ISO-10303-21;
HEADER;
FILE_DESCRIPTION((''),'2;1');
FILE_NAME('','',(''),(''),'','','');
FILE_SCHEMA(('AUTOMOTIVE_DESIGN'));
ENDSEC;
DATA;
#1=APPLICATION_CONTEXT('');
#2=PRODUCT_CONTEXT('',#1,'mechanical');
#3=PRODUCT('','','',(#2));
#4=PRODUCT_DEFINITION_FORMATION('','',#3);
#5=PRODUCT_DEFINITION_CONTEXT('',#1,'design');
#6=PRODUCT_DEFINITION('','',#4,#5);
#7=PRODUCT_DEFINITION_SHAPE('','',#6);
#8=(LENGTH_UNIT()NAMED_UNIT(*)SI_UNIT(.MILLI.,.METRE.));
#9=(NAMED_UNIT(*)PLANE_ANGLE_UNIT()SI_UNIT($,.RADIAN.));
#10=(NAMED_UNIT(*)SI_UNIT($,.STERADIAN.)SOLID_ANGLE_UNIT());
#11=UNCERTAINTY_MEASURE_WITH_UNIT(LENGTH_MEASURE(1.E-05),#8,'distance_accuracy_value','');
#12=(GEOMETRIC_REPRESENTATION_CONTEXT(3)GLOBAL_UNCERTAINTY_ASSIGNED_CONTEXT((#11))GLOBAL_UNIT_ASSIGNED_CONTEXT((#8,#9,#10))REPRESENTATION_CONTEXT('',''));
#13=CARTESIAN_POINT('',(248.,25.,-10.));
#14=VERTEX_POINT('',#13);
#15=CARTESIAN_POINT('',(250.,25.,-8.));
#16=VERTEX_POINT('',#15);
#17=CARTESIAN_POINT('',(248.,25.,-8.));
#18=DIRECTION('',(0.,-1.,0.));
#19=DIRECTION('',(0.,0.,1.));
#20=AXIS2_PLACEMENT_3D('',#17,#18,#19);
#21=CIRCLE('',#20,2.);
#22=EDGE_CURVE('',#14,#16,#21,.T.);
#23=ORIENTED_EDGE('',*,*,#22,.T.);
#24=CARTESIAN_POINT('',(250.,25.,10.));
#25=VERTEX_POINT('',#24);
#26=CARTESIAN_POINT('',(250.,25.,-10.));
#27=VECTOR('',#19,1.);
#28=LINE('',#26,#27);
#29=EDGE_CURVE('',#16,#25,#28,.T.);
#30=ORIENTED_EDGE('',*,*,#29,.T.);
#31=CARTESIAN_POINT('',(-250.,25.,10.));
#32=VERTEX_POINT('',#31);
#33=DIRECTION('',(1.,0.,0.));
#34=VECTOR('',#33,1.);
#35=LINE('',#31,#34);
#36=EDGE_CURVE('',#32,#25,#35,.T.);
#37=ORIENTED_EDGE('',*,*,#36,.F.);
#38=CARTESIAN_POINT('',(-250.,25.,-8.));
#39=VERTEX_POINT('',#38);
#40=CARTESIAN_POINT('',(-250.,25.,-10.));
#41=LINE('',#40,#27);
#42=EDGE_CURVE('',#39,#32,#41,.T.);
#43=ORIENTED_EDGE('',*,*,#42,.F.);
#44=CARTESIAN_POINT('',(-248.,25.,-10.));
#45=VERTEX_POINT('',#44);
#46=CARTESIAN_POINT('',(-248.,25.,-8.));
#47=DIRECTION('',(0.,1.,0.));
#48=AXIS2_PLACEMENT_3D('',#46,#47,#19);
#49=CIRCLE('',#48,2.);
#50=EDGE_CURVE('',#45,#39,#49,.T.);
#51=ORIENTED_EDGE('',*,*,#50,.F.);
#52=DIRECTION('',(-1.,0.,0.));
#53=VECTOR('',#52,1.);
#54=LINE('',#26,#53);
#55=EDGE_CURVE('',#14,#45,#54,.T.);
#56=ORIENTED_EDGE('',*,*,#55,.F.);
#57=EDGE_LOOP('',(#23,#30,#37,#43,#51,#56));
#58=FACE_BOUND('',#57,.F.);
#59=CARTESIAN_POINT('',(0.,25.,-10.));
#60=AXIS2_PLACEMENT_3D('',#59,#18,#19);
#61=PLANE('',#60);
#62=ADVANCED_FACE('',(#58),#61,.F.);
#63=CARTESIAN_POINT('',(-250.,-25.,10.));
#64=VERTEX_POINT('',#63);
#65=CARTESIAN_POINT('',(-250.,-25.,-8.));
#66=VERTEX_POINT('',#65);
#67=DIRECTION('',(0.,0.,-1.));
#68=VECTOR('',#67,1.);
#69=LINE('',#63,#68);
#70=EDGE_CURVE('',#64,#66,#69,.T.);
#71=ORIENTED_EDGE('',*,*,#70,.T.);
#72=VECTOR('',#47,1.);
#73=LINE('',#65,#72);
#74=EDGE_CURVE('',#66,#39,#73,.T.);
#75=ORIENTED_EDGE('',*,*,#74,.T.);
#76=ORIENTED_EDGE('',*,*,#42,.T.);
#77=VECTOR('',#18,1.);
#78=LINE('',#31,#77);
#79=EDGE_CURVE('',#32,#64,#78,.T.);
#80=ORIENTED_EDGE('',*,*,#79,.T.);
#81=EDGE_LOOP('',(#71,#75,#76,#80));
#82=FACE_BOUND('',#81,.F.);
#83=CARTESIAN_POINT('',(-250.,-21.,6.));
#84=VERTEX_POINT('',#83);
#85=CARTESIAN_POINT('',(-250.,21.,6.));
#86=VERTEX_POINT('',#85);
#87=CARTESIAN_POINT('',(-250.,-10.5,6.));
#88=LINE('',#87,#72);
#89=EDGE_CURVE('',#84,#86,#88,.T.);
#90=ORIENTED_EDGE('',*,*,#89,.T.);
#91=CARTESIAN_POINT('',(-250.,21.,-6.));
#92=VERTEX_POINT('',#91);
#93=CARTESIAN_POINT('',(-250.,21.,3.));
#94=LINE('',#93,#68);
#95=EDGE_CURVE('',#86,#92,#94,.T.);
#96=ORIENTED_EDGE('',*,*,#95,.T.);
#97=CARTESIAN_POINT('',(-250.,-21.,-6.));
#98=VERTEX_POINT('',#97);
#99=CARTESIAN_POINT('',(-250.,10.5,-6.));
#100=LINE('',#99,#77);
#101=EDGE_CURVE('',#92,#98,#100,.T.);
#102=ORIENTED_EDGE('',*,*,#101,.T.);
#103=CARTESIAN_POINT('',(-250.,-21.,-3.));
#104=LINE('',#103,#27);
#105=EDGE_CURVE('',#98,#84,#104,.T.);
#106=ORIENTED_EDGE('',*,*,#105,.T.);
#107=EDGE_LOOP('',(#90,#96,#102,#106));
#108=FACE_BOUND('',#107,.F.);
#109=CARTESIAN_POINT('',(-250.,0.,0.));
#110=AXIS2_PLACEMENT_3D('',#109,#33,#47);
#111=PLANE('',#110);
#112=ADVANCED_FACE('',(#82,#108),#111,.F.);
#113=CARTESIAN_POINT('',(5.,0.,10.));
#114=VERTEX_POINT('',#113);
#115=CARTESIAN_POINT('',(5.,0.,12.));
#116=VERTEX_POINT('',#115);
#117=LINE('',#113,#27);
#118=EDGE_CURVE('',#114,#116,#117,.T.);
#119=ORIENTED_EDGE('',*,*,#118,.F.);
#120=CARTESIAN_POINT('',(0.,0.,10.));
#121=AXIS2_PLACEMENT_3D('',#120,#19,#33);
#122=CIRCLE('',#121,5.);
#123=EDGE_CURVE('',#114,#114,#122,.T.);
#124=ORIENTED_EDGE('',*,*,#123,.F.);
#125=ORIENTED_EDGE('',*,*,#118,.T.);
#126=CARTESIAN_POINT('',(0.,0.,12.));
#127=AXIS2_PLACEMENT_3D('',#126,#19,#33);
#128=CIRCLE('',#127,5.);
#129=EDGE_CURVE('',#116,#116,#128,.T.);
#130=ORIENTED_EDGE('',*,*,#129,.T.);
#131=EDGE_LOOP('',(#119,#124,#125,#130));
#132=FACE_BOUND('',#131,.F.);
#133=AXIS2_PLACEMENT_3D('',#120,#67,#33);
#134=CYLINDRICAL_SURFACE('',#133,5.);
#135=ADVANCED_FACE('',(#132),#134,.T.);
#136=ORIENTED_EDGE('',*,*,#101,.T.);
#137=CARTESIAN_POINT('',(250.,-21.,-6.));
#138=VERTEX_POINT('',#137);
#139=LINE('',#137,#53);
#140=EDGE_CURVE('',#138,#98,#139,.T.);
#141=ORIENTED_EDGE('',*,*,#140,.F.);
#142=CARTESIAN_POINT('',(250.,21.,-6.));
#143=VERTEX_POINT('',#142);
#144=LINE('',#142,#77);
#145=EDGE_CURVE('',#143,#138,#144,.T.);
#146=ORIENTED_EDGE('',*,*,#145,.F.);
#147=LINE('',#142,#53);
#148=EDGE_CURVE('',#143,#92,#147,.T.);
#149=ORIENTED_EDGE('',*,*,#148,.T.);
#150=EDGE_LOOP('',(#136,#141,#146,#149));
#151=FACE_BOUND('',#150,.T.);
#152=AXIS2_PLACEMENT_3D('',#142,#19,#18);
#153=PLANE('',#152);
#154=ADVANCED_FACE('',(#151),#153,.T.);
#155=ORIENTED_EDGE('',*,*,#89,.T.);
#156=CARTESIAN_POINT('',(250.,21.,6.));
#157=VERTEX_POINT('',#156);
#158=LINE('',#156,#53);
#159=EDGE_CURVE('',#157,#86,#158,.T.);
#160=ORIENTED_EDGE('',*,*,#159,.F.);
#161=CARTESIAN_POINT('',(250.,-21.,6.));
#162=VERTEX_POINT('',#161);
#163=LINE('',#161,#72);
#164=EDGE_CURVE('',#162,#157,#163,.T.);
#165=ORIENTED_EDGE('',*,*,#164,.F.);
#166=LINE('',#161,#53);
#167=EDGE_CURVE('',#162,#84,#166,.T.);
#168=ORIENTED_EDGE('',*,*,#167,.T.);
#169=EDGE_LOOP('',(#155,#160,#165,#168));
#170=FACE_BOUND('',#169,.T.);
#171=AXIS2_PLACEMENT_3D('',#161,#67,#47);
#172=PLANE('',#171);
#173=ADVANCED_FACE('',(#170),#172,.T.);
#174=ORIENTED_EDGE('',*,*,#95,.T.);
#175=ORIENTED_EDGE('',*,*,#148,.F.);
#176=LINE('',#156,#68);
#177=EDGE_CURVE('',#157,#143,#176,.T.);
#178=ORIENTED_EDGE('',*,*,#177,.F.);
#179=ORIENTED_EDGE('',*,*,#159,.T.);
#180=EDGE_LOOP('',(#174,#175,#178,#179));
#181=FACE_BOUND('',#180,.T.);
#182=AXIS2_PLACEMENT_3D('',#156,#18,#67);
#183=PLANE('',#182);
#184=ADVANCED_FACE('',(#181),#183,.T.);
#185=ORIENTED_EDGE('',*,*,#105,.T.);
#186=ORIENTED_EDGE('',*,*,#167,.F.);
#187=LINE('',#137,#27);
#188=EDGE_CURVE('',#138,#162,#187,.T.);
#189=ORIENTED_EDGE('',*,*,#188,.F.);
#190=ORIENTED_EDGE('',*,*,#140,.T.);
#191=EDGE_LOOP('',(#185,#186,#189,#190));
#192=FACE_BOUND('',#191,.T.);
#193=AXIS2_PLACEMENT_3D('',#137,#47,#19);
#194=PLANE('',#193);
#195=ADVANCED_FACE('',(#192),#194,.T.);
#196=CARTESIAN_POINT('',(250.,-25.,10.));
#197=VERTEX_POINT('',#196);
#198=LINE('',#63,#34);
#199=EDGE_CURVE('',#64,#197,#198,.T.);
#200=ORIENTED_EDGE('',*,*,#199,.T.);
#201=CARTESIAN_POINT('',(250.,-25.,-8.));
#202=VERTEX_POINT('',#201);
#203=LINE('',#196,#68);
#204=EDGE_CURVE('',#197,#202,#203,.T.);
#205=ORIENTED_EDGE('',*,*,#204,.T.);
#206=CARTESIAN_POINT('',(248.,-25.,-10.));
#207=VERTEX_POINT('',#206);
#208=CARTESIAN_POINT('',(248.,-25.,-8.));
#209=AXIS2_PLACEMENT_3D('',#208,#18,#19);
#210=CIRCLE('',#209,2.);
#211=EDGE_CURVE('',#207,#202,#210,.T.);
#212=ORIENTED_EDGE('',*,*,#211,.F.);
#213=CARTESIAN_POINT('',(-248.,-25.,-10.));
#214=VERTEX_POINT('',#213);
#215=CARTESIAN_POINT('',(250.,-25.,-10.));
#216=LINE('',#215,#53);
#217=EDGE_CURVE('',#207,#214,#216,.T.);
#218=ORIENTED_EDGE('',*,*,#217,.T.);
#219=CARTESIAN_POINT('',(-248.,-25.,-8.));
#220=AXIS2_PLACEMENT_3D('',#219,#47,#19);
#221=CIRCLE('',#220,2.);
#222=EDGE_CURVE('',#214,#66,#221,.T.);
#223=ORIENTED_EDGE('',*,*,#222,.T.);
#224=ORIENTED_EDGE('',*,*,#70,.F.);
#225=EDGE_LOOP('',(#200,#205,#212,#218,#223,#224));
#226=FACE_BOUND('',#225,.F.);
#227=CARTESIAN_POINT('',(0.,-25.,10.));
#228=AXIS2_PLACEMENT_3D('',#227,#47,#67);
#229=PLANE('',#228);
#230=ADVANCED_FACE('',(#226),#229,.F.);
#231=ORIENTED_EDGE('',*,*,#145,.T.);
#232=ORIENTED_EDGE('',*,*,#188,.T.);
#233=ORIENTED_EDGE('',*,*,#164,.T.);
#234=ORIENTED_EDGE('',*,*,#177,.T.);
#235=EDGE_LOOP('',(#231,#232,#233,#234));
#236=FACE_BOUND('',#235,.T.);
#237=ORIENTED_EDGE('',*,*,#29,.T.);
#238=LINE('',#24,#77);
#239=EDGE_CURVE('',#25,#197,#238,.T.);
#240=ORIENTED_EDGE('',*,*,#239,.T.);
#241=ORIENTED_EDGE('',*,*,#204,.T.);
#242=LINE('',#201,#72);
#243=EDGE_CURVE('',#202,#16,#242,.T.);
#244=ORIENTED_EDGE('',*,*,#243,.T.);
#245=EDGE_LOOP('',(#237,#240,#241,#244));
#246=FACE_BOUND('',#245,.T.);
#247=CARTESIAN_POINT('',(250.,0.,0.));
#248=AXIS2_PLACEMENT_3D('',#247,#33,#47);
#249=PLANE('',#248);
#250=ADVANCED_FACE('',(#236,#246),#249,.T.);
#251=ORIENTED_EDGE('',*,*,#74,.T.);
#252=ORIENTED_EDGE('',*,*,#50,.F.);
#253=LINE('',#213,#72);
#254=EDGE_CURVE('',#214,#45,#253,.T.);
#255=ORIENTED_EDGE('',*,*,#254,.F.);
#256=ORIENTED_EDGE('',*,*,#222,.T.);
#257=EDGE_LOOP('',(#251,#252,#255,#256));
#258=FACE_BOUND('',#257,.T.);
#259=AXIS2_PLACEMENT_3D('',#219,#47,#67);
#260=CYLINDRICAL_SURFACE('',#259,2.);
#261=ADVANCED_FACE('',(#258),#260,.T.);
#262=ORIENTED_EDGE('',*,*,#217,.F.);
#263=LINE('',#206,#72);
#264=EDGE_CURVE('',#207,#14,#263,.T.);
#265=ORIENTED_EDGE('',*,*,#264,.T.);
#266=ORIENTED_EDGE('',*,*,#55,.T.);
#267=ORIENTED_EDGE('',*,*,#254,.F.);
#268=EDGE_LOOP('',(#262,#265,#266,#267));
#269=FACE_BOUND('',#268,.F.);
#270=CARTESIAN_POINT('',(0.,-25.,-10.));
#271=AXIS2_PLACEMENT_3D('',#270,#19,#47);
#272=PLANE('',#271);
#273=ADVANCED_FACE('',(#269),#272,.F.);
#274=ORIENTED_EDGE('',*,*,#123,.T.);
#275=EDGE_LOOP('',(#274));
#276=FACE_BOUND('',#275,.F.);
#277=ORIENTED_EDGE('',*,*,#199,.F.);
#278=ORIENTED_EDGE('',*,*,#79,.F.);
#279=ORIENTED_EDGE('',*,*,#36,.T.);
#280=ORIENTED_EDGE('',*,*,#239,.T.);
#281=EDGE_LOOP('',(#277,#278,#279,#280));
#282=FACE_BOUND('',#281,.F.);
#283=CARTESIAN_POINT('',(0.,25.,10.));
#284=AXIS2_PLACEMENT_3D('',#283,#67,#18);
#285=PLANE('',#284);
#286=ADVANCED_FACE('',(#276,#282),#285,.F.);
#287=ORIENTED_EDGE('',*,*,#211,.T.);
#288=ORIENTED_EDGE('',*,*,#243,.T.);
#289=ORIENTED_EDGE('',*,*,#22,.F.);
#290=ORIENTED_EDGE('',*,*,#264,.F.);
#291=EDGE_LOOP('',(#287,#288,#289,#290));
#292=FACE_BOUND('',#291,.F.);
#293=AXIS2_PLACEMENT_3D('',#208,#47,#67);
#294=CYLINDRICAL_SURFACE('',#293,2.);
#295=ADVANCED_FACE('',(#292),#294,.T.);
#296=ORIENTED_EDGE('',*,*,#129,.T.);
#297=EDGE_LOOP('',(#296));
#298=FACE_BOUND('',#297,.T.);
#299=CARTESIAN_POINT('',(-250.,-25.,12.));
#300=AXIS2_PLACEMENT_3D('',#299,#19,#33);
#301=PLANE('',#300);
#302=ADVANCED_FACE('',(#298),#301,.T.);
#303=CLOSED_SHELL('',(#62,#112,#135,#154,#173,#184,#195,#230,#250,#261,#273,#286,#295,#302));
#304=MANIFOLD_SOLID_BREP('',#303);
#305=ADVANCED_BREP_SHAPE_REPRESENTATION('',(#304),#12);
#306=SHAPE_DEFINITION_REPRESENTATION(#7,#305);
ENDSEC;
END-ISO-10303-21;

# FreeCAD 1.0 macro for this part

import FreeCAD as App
import Part
import Sketcher

V = App.Vector


def edges_at(feature, points):
    """Names of the edges that pass closest to the given points."""
    edges = feature.Shape.Edges
    near = lambda p: min(range(len(edges)), key=lambda i: edges[i].distToShape(Part.Vertex(*p))[0])
    return sorted({f"Edge{near(p) + 1}" for p in points})


def add_polygon(sketch, points):
    """Adds a closed chain of lines whose ends are joined by coincident constraints."""
    first, n = sketch.GeometryCount, len(points)
    for a, b in zip(points, points[1:] + points[:1]):
        sketch.addGeometry(Part.LineSegment(App.Vector(*a, 0), App.Vector(*b, 0)), False)
    for i in range(n):
        sketch.addConstraint(Sketcher.Constraint("Coincident", first + i, 2, first + (i + 1) % n, 1))

doc = App.newDocument("Part")
body = doc.addObject("PartDesign::Body", "Body")

# Sketch on YZ plane
sketch1 = body.newObject("Sketcher::SketchObject", "Sketch")
sketch1.AttachmentSupport = (doc.getObject("YZ_Plane"), [""])
sketch1.MapMode = "FlatFace"
add_polygon(sketch1, [(25, -10), (25, 10), (-25, 10), (-25, -10)])  # lines 0-3
sketch1.addConstraint(Sketcher.Constraint("Vertical", 0))
sketch1.addConstraint(Sketcher.Constraint("Horizontal", 1))
sketch1.addConstraint(Sketcher.Constraint("Vertical", 2))
sketch1.addConstraint(Sketcher.Constraint("Horizontal", 3))
sketch1.addConstraint(Sketcher.Constraint("Symmetric", 0, 2, 2, 2, -1, 1))
sketch1.addConstraint(Sketcher.Constraint("DistanceX", 1, 2, 1, 1, 50.0))
sketch1.addConstraint(Sketcher.Constraint("DistanceY", 0, 1, 0, 2, 20.0))
pad1 = body.newObject("PartDesign::Pad", "Pad")
pad1.Profile = sketch1
pad1.Length = 500
pad1.Midplane = True

# Sketch on XY plane
sketch2 = body.newObject("Sketcher::SketchObject", "Sketch001")
sketch2.AttachmentSupport = (doc.getObject("XY_Plane"), [""])
sketch2.MapMode = "FlatFace"
sketch2.AttachmentOffset = App.Placement(V(0, 0, 10), App.Rotation())
sketch2.addGeometry(Part.Circle(V(0, 0, 0), V(0, 0, 1), 5), False)
sketch2.addConstraint(Sketcher.Constraint("Coincident", 0, 3, -1, 1))
sketch2.addConstraint(Sketcher.Constraint("Diameter", 0, 10.0))
pad2 = body.newObject("PartDesign::Pad", "Pad001")
pad2.Profile = sketch2
pad2.Length = 2
doc.recompute()

fillet = body.newObject("PartDesign::Fillet", "Fillet")
fillet.Base = (pad2, edges_at(pad2, [(250, 0, -10), (-250, 0, -10)]))
fillet.Radius = 2

# Sketch on YZ plane
sketch3 = body.newObject("Sketcher::SketchObject", "Sketch002")
sketch3.AttachmentSupport = (doc.getObject("YZ_Plane"), [""])
sketch3.MapMode = "FlatFace"
sketch3.AttachmentOffset = App.Placement(V(0, 0, 250), App.Rotation())
add_polygon(sketch3, [(21, -6), (21, 6), (-21, 6), (-21, -6)])  # lines 0-3
sketch3.addConstraint(Sketcher.Constraint("Vertical", 0))
sketch3.addConstraint(Sketcher.Constraint("Horizontal", 1))
sketch3.addConstraint(Sketcher.Constraint("Vertical", 2))
sketch3.addConstraint(Sketcher.Constraint("Horizontal", 3))
sketch3.addConstraint(Sketcher.Constraint("Symmetric", 0, 2, 2, 2, -1, 1))
sketch3.addConstraint(Sketcher.Constraint("DistanceX", 1, 2, 1, 1, 42.0))
sketch3.addConstraint(Sketcher.Constraint("DistanceY", 0, 1, 0, 2, 12.0))
pocket1 = body.newObject("PartDesign::Pocket", "Pocket")
pocket1.Profile = sketch3
pocket1.Type = "ThroughAll"

doc.recompute()
